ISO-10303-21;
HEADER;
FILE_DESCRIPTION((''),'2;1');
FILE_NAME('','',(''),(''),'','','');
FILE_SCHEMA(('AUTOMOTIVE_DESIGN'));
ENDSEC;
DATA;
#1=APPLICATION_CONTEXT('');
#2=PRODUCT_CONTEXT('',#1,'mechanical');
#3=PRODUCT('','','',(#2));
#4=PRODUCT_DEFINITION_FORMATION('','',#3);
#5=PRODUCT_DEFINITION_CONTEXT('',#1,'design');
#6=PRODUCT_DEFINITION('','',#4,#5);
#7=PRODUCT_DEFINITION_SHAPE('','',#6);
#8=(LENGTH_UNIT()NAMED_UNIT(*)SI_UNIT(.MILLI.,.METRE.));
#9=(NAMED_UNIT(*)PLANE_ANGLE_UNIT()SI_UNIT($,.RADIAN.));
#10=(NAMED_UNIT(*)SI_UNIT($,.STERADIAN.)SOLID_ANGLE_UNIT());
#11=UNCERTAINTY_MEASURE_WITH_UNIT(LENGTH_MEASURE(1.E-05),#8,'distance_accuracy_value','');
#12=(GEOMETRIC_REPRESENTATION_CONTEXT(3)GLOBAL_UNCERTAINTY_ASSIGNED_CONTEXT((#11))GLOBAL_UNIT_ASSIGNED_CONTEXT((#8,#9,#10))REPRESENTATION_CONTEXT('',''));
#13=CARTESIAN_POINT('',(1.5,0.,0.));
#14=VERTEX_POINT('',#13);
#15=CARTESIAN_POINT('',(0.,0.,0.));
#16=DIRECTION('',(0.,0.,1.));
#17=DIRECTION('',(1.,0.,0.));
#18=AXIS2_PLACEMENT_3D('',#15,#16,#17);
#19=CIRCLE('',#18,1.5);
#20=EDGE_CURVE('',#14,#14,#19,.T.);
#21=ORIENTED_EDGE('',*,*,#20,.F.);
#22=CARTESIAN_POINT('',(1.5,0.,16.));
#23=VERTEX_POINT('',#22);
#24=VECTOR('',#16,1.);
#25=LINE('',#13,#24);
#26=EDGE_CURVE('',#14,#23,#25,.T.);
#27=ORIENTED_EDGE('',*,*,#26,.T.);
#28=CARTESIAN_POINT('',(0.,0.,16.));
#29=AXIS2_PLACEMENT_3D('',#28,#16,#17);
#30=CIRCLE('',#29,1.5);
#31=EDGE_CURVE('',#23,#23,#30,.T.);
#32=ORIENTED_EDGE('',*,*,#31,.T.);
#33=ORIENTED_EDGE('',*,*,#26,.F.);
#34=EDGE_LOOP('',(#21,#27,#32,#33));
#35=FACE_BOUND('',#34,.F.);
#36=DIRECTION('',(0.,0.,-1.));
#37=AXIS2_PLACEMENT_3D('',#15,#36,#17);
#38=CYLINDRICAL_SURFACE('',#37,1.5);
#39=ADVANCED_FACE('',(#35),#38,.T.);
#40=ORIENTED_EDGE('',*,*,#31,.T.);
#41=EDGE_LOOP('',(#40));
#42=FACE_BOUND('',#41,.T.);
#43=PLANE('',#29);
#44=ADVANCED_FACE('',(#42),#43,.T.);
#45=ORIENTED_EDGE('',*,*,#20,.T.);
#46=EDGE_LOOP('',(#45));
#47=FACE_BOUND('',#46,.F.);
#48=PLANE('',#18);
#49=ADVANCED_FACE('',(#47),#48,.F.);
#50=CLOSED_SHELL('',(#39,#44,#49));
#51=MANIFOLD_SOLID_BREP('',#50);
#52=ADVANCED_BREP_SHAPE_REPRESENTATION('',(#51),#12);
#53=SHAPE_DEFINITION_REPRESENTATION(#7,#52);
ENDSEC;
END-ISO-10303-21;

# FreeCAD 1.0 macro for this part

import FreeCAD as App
import Part
import Sketcher
Q = App.Units.Quantity

doc = App.newDocument("Part")
body = doc.addObject("PartDesign::Body", "Body")

sketch1 = body.newObject("Sketcher::SketchObject", "Sketch")
sketch1.AttachmentSupport = (doc.getObject("XY_Plane"), [""])
sketch1.MapMode = "FlatFace"
sketch1.addGeometry(Part.Circle(App.Vector(0, 0, 0), App.Vector(0, 0, 1), 1.5), False)
sketch1.addConstraint(Sketcher.Constraint("Coincident", 0, 3, -1, 1))
sketch1.addConstraint(Sketcher.Constraint("Diameter", 0, Q("3 mm")))
pad1 = body.newObject("PartDesign::Pad", "Pad")
pad1.Profile = sketch1
pad1.Length = 16

doc.recompute()
